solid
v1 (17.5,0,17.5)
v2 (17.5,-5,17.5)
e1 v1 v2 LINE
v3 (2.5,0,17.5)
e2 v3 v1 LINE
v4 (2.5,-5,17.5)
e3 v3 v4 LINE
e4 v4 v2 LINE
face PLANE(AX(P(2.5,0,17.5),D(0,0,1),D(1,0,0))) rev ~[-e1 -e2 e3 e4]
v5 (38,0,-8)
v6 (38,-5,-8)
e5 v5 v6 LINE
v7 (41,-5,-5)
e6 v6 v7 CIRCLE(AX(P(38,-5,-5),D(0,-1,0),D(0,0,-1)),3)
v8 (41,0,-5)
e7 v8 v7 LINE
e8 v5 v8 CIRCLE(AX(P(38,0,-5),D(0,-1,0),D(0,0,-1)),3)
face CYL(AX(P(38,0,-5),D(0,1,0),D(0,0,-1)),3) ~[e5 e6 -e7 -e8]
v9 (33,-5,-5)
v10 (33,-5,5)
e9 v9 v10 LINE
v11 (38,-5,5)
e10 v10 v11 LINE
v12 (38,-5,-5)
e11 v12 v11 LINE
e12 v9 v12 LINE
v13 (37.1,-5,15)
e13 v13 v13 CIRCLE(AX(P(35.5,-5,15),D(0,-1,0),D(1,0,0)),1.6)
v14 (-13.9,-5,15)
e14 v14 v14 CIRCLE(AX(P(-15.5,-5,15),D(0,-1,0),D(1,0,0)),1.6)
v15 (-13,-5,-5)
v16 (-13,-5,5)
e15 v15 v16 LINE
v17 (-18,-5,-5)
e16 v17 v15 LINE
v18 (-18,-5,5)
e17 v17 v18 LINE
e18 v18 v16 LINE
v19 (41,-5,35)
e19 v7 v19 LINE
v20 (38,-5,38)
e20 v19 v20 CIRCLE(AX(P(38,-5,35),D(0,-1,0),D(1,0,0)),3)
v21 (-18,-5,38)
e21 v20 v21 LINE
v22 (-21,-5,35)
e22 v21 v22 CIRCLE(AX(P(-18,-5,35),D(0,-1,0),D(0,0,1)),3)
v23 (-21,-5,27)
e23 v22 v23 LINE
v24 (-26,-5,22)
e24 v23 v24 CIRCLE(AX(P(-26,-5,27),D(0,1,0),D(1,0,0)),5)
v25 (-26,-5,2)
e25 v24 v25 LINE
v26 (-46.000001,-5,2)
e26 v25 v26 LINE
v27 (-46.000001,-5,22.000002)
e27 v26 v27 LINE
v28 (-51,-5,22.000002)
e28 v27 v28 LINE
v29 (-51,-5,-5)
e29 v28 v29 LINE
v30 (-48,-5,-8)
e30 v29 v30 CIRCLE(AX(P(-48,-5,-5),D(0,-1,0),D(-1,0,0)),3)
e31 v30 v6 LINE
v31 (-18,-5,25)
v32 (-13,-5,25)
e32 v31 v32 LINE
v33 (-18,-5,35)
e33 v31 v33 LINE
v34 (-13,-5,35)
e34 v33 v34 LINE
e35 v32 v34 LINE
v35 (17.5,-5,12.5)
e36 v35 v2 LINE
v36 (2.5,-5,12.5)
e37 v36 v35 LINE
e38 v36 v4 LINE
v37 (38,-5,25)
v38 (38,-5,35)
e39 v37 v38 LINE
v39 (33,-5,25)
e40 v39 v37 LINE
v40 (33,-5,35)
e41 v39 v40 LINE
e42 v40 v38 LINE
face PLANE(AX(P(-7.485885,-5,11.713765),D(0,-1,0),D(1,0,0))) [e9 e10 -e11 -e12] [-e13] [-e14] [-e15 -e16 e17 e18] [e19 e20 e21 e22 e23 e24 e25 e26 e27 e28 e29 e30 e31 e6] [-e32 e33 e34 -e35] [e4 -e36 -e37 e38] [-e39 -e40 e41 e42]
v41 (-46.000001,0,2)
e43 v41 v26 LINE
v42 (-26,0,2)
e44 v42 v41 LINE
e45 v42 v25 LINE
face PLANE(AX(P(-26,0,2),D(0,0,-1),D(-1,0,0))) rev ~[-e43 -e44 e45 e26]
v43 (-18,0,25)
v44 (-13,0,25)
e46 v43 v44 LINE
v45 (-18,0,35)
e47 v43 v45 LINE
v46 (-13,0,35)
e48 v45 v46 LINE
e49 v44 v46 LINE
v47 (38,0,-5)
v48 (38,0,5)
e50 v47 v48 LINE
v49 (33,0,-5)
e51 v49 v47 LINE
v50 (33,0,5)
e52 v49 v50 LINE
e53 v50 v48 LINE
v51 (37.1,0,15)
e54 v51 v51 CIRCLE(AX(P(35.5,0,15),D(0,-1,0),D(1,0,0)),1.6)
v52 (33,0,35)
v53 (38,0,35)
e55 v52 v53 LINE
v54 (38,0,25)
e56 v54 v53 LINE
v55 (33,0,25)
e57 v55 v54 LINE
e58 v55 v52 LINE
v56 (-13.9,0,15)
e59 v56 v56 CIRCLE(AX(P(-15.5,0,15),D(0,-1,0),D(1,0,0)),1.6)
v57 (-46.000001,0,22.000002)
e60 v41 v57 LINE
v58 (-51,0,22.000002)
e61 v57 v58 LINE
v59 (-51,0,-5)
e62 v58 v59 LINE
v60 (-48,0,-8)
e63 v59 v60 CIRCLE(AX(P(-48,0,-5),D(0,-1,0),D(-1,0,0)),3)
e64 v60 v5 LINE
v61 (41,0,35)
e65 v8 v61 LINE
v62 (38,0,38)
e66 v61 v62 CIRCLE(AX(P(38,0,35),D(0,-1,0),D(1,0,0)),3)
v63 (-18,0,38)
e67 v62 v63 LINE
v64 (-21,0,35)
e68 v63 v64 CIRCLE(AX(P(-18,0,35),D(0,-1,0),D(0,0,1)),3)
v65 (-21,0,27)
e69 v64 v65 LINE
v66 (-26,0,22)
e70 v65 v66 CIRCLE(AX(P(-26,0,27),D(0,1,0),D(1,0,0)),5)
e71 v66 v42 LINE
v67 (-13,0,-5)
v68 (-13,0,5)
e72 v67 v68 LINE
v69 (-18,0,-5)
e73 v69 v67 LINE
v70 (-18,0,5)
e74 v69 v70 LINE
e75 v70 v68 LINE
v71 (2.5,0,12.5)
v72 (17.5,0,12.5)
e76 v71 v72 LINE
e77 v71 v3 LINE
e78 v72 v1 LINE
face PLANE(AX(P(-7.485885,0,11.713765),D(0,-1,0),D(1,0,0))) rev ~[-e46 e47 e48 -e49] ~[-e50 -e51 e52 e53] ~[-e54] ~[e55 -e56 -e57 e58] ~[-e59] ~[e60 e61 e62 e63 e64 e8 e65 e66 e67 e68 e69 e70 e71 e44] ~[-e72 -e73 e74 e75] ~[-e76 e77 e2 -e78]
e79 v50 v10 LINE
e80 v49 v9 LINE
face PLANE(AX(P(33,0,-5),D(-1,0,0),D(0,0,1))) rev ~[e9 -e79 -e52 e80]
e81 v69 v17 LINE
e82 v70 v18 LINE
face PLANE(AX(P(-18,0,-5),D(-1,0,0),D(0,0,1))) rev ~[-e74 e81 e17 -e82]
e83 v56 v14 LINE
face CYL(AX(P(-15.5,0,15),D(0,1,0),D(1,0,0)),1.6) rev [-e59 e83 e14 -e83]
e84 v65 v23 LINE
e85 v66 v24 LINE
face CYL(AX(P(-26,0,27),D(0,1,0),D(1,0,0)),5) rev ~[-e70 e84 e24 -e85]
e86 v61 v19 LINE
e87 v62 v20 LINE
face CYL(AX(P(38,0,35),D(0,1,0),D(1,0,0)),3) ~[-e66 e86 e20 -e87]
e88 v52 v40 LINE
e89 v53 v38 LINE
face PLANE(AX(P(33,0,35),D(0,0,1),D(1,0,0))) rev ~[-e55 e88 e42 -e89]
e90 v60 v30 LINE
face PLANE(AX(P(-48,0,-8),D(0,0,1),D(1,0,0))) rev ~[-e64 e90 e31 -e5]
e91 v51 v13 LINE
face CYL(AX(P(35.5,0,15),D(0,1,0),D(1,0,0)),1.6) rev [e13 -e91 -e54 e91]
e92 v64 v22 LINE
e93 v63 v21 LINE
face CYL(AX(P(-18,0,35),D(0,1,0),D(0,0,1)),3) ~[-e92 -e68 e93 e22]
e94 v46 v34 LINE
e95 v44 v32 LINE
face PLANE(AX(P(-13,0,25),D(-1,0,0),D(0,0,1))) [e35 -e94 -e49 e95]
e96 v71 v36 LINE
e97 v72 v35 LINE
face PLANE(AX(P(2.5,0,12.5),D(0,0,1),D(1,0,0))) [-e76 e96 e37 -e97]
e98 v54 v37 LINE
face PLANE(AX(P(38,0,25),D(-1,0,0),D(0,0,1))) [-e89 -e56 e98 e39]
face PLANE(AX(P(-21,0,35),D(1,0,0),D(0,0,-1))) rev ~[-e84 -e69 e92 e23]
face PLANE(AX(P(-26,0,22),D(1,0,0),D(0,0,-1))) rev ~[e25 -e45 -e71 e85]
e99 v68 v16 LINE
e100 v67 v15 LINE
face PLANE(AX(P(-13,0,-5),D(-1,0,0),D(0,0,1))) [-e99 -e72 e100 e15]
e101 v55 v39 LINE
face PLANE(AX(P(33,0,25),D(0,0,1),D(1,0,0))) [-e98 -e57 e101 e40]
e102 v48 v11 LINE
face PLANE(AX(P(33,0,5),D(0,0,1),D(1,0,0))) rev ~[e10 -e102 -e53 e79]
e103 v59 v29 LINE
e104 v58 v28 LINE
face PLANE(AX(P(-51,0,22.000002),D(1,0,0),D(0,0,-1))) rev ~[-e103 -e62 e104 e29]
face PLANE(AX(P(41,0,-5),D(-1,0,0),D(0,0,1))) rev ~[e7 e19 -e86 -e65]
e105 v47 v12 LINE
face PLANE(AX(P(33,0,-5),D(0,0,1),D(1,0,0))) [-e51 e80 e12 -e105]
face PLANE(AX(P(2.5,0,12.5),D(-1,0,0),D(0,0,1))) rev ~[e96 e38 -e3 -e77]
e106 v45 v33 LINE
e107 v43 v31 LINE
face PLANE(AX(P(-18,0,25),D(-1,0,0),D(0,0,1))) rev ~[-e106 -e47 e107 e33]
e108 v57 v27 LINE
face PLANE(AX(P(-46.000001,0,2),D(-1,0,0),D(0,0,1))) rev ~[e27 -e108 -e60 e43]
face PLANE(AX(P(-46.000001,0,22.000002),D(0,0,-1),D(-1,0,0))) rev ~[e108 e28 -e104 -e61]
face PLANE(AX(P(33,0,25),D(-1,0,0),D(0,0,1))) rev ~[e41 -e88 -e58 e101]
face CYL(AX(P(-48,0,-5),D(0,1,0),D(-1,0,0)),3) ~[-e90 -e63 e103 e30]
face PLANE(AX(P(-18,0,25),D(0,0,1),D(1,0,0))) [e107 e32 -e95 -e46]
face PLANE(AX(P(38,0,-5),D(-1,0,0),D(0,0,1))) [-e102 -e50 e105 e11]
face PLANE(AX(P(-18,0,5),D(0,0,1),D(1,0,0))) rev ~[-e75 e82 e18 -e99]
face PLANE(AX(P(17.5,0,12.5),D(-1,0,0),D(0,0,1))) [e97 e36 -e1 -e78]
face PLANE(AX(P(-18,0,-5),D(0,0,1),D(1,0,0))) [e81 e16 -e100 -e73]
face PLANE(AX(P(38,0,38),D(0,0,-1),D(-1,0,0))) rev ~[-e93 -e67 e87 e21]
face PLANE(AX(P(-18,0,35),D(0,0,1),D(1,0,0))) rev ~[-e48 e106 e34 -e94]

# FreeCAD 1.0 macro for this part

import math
import FreeCAD as App
import Part
import Sketcher

V = App.Vector
Q = App.Units.Quantity


def add_polygon(sketch, points):
    """Adds a closed chain of lines whose ends are joined by coincident constraints."""
    first, n = sketch.GeometryCount, len(points)
    for a, b in zip(points, points[1:] + points[:1]):
        sketch.addGeometry(Part.LineSegment(App.Vector(*a, 0), App.Vector(*b, 0)), False)
    for i in range(n):
        sketch.addConstraint(Sketcher.Constraint("Coincident", first + i, 2, first + (i + 1) % n, 1))

doc = App.newDocument("Part")
body = doc.addObject("PartDesign::Body", "Body")

# Sketch on XZ plane
sketch1 = body.newObject("Sketcher::SketchObject", "Sketch")
sketch1.AttachmentSupport = (doc.getObject("XZ_Plane"), [""])
sketch1.MapMode = "FlatFace"
sketch1.addGeometry(Part.LineSegment(V(-21, 35, 0), V(-21, 27, 0)), False)  # 0
sketch1.addGeometry(Part.ArcOfCircle(Part.Circle(V(-26, 27, 0), V(0, 0, 1), 5), math.radians(-90), math.radians(0)), False)  # 1
sketch1.addGeometry(Part.LineSegment(V(-26, 22, 0), V(-26, 2, 0)), False)  # 2
sketch1.addGeometry(Part.LineSegment(V(-26, 2, 0), V(-46, 2, 0)), False)  # 3
sketch1.addGeometry(Part.LineSegment(V(-46, 2, 0), V(-46, 22, 0)), False)  # 4
sketch1.addGeometry(Part.LineSegment(V(-46, 22, 0), V(-51, 22, 0)), False)  # 5
sketch1.addGeometry(Part.LineSegment(V(-51, 22, 0), V(-51, -5, 0)), False)  # 6
sketch1.addGeometry(Part.ArcOfCircle(Part.Circle(V(-48, -5, 0), V(0, 0, 1), 3), math.radians(180), math.radians(270)), False)  # 7
sketch1.addGeometry(Part.LineSegment(V(-48, -8, 0), V(38, -8, 0)), False)  # 8
sketch1.addGeometry(Part.ArcOfCircle(Part.Circle(V(38, -5, 0), V(0, 0, 1), 3), math.radians(-90), math.radians(0)), False)  # 9
sketch1.addGeometry(Part.LineSegment(V(41, -5, 0), V(41, 35, 0)), False)  # 10
sketch1.addGeometry(Part.ArcOfCircle(Part.Circle(V(38, 35, 0), V(0, 0, 1), 3), math.radians(0), math.radians(90)), False)  # 11
sketch1.addGeometry(Part.LineSegment(V(38, 38, 0), V(-18, 38, 0)), False)  # 12
sketch1.addGeometry(Part.ArcOfCircle(Part.Circle(V(-18, 35, 0), V(0, 0, 1), 3), math.radians(90), math.radians(180)), False)  # 13
add_polygon(sketch1, [(-13, -5), (-18, -5), (-18, 5), (-13, 5)])  # lines 14-17
add_polygon(sketch1, [(38, -5), (33, -5), (33, 5), (38, 5)])  # lines 18-21
sketch1.addGeometry(Part.Circle(V(-15.5, 15, 0), V(0, 0, 1), 1.6), False)  # 22
add_polygon(sketch1, [(-13, 25), (-18, 25), (-18, 35), (-13, 35)])  # lines 23-26
add_polygon(sketch1, [(17.5, 12.5), (2.5, 12.5), (2.5, 17.5), (17.5, 17.5)])  # lines 27-30
sketch1.addGeometry(Part.Circle(V(35.5, 15, 0), V(0, 0, 1), 1.6), False)  # 31
add_polygon(sketch1, [(38, 25), (33, 25), (33, 35), (38, 35)])  # lines 32-35
sketch1.addConstraint([
    Sketcher.Constraint("Tangent", 0, 2, 1, 2),
    Sketcher.Constraint("Coincident", 1, 1, 2, 1),
    Sketcher.Constraint("Coincident", 2, 2, 3, 1),
    Sketcher.Constraint("Coincident", 3, 2, 4, 1),
    Sketcher.Constraint("Coincident", 4, 2, 5, 1),
    Sketcher.Constraint("Coincident", 5, 2, 6, 1),
    Sketcher.Constraint("Tangent", 6, 2, 7, 1),
    Sketcher.Constraint("Tangent", 7, 2, 8, 1),
    Sketcher.Constraint("Tangent", 8, 2, 9, 1),
    Sketcher.Constraint("Tangent", 9, 2, 10, 1),
    Sketcher.Constraint("Tangent", 10, 2, 11, 1),
    Sketcher.Constraint("Tangent", 11, 2, 12, 1),
    Sketcher.Constraint("Tangent", 12, 2, 13, 1),
    Sketcher.Constraint("Tangent", 13, 2, 0, 1),
    Sketcher.Constraint("Vertical", 0),
    Sketcher.Constraint("Vertical", 2),
    Sketcher.Constraint("Horizontal", 3),
    Sketcher.Constraint("Vertical", 4),
    Sketcher.Constraint("Horizontal", 5),
    Sketcher.Constraint("Vertical", 6),
    Sketcher.Constraint("Horizontal", 8),
    Sketcher.Constraint("Vertical", 10),
    Sketcher.Constraint("Horizontal", 12),
    Sketcher.Constraint("Horizontal", 14),
    Sketcher.Constraint("Vertical", 15),
    Sketcher.Constraint("Horizontal", 16),
    Sketcher.Constraint("Vertical", 17),
    Sketcher.Constraint("Horizontal", 18),
    Sketcher.Constraint("Vertical", 19),
    Sketcher.Constraint("Horizontal", 20),
    Sketcher.Constraint("Vertical", 21),
    Sketcher.Constraint("Horizontal", 23),
    Sketcher.Constraint("Vertical", 24),
    Sketcher.Constraint("Horizontal", 25),
    Sketcher.Constraint("Vertical", 26),
    Sketcher.Constraint("Horizontal", 27),
    Sketcher.Constraint("Vertical", 28),
    Sketcher.Constraint("Horizontal", 29),
    Sketcher.Constraint("Vertical", 30),
    Sketcher.Constraint("Horizontal", 32),
    Sketcher.Constraint("Vertical", 33),
    Sketcher.Constraint("Horizontal", 34),
    Sketcher.Constraint("Vertical", 35),
    Sketcher.Constraint("Coincident", 21, 2, 9, 3),
    Sketcher.Constraint("Coincident", 24, 2, 13, 3),
    Sketcher.Constraint("Coincident", 34, 2, 11, 3),
    Sketcher.Constraint("Equal", 7, 9),
    Sketcher.Constraint("Equal", 9, 11),
    Sketcher.Constraint("Equal", 11, 13),
    Sketcher.Constraint("Equal", 22, 31),
    Sketcher.Constraint("Horizontal", 22, 3, 31, 3),
    Sketcher.Constraint("Horizontal", 1, 1, 4, 2),
    Sketcher.Constraint("Horizontal", 9, 2, 14, 2),
    Sketcher.Constraint("Horizontal", 16, 2, 19, 2),
    Sketcher.Constraint("Horizontal", 26, 2, 32, 2),
    Sketcher.Constraint("Vertical", 12, 2, 14, 2),
    Sketcher.Constraint("Vertical", 17, 2, 25, 2),
    Sketcher.Constraint("Vertical", 19, 2, 32, 2),
    Sketcher.Constraint("Equal", 5, 14),
    Sketcher.Constraint("Equal", 16, 18),
    Sketcher.Constraint("Equal", 3, 2),
    Sketcher.Constraint("Equal", 21, 24),
    Sketcher.Constraint("Equal", 34, 28),
    Sketcher.Constraint("Radius", 1, Q("5 mm")),
    Sketcher.Constraint("Radius", 7, Q("3 mm")),
    Sketcher.Constraint("Diameter", 22, Q("3.2 mm")),
    Sketcher.Constraint("DistanceX", 3, 2, 3, 1, Q("20.000001 mm")),
    Sketcher.Constraint("DistanceX", 5, 2, 5, 1, Q("4.999999 mm")),
    Sketcher.Constraint("DistanceX", 8, 1, 8, 2, Q("86 mm")),
    Sketcher.Constraint("DistanceX", 12, 2, 12, 1, Q("56 mm")),
    Sketcher.Constraint("DistanceX", 27, 2, 27, 1, Q("15 mm")),
    Sketcher.Constraint("DistanceY", 0, 2, 0, 1, Q("8 mm")),
    Sketcher.Constraint("DistanceY", 6, 2, 6, 1, Q("27.000002 mm")),
    Sketcher.Constraint("DistanceY", 15, 1, 15, 2, Q("10 mm")),
    Sketcher.Constraint("DistanceX", 1, 3, -1, 1, Q("26 mm")),
    Sketcher.Constraint("DistanceY", -1, 1, 1, 3, Q("27 mm")),
    Sketcher.Constraint("DistanceY", -1, 1, 22, 3, Q("15 mm")),
    Sketcher.Constraint("DistanceX", 22, 3, 31, 3, Q("51 mm")),
    Sketcher.Constraint("DistanceX", 22, 3, 27, 2, Q("18 mm")),
    Sketcher.Constraint("DistanceX", 22, 3, -1, 1, Q("15.5 mm")),
    Sketcher.Constraint("DistanceY", -1, 1, 27, 2, Q("12.5 mm")),
])
pad1 = body.newObject("PartDesign::Pad", "Pad")
pad1.Profile = sketch1
pad1.Length = 5

doc.recompute()
